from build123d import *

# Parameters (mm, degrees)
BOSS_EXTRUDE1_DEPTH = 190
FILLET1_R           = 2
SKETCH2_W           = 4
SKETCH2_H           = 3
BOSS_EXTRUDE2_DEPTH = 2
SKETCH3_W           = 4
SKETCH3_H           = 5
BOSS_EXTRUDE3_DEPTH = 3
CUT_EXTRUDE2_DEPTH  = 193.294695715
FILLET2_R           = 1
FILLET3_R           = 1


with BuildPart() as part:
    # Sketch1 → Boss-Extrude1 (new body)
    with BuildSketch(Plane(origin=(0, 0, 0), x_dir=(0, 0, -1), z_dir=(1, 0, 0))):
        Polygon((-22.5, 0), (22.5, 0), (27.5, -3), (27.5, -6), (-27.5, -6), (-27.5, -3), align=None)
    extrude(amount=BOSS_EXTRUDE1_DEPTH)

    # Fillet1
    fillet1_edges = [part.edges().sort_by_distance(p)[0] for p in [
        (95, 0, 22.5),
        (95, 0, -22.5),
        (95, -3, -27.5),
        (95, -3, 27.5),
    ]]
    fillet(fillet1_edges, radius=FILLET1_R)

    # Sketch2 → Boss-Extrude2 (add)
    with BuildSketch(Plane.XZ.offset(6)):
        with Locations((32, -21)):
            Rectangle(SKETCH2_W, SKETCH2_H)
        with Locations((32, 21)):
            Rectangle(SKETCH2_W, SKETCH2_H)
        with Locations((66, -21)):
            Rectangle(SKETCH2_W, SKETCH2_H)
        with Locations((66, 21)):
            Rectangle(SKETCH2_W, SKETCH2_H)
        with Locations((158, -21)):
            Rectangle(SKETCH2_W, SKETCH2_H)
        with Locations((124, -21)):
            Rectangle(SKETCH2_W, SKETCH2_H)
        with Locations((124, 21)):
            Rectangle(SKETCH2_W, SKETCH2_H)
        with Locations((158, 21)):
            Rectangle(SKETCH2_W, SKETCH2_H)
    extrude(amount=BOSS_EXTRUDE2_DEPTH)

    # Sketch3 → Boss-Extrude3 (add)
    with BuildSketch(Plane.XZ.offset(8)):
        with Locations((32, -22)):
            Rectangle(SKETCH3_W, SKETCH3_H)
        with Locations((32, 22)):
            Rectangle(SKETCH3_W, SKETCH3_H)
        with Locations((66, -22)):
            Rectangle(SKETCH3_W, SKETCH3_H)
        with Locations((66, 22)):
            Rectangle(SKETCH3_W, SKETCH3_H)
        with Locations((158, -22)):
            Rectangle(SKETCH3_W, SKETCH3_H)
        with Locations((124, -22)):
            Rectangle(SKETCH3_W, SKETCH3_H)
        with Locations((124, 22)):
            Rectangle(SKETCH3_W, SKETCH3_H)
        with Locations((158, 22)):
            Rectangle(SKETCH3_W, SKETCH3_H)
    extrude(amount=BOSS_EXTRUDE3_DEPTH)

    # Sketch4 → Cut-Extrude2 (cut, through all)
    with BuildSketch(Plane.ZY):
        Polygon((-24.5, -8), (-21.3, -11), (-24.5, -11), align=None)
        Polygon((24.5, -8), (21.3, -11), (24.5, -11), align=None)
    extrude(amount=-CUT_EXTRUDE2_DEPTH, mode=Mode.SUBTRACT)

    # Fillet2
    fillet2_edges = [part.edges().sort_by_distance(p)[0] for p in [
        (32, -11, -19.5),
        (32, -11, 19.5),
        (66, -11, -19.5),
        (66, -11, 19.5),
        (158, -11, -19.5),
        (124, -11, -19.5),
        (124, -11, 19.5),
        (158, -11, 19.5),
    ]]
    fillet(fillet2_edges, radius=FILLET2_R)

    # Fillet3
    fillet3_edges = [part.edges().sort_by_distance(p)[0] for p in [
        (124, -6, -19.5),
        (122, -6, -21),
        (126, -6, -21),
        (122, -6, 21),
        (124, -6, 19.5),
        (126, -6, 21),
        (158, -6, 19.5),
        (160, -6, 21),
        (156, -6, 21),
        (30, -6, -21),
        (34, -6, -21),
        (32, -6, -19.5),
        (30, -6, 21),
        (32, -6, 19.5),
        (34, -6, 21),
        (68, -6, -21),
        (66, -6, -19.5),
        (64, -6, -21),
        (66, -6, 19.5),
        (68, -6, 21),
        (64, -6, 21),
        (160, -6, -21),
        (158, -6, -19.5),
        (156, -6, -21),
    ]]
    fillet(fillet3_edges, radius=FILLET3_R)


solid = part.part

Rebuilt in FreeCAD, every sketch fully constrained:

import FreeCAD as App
import Part
import Sketcher
from FreeCAD import Vector
Q = App.Units.Quantity


def edges_at(feature, points):
    """Names of the edges that pass closest to the given points."""
    edges = feature.Shape.Edges
    near = lambda p: min(range(len(edges)), key=lambda i: edges[i].distToShape(Part.Vertex(*p))[0])
    return sorted({f"Edge{near(p) + 1}" for p in points})


def add_polygon(sketch, points):
    """Adds a closed chain of lines whose ends are joined by coincident constraints."""
    first, n = sketch.GeometryCount, len(points)
    for a, b in zip(points, points[1:] + points[:1]):
        sketch.addGeometry(Part.LineSegment(App.Vector(*a, 0), App.Vector(*b, 0)), False)
    for i in range(n):
        sketch.addConstraint(Sketcher.Constraint("Coincident", first + i, 2, first + (i + 1) % n, 1))

doc = App.newDocument("Part")
body = doc.addObject("PartDesign::Body", "Body")

sketch1 = doc.addObject("Sketcher::SketchObject", "Sketch")
body.addObject(sketch1)
sketch1.AttachmentSupport = (doc.YZ_Plane, [""])
sketch1.MapMode = "FlatFace"
add_polygon(sketch1, [(0, -22.5), (0, 22.5), (-3, 27.5), (-6, 27.5), (-6, -27.5), (-3, -27.5)])
sketch1.addConstraint([
    Sketcher.Constraint("Vertical", 0),
    Sketcher.Constraint("Horizontal", 2),
    Sketcher.Constraint("Vertical", 3),
    Sketcher.Constraint("Horizontal", 4),
    Sketcher.Constraint("Symmetric", 0, 2, 5, 2, -1, 1),
    Sketcher.Constraint("Symmetric", 1, 2, 4, 2, -1),
    Sketcher.Constraint("DistanceX", 2, 2, 2, 1, Q("3 mm")),
    Sketcher.Constraint("DistanceY", 0, 1, 0, 2, Q("45 mm")),
    Sketcher.Constraint("DistanceY", 3, 2, 3, 1, Q("55 mm")),
    Sketcher.Constraint("DistanceX", 1, 2, -1, 1, Q("3 mm")),
])
pad1 = doc.addObject("PartDesign::Pad", "Pad")
body.addObject(pad1)
pad1.Profile = sketch1
pad1.Length = 190
doc.recompute()

fillet = doc.addObject("PartDesign::Fillet", "Fillet")
body.addObject(fillet)
fillet.Base = (pad1, edges_at(pad1, [
    (95, 0, 22.5),
    (95, 0, -22.5),
    (95, -3, -27.5),
    (95, -3, 27.5),
]))
fillet.Radius = 2

sketch2 = doc.addObject("Sketcher::SketchObject", "Sketch001")
body.addObject(sketch2)
sketch2.AttachmentSupport = (doc.XZ_Plane, [""])
sketch2.MapMode = "FlatFace"
sketch2.AttachmentOffset = App.Placement(Vector(0, 0, 6), App.Rotation())
add_polygon(sketch2, [(30, -19.5), (30, -22.5), (34, -22.5), (34, -19.5)])
add_polygon(sketch2, [(30, 22.5), (30, 19.5), (34, 19.5), (34, 22.5)])
add_polygon(sketch2, [(64, -19.5), (64, -22.5), (68, -22.5), (68, -19.5)])
add_polygon(sketch2, [(64, 22.5), (64, 19.5), (68, 19.5), (68, 22.5)])
add_polygon(sketch2, [(156, -19.5), (156, -22.5), (160, -22.5), (160, -19.5)])
add_polygon(sketch2, [(122, -19.5), (122, -22.5), (126, -22.5), (126, -19.5)])
add_polygon(sketch2, [(122, 22.5), (122, 19.5), (126, 19.5), (126, 22.5)])
add_polygon(sketch2, [(156, 22.5), (156, 19.5), (160, 19.5), (160, 22.5)])
sketch2.addConstraint([
    Sketcher.Constraint("Vertical", 0),
    Sketcher.Constraint("Horizontal", 1),
    Sketcher.Constraint("Vertical", 2),
    Sketcher.Constraint("Horizontal", 3),
    Sketcher.Constraint("Vertical", 4),
    Sketcher.Constraint("Horizontal", 5),
    Sketcher.Constraint("Vertical", 6),
    Sketcher.Constraint("Horizontal", 7),
    Sketcher.Constraint("Vertical", 8),
    Sketcher.Constraint("Horizontal", 9),
    Sketcher.Constraint("Vertical", 10),
    Sketcher.Constraint("Horizontal", 11),
    Sketcher.Constraint("Vertical", 12),
    Sketcher.Constraint("Horizontal", 13),
    Sketcher.Constraint("Vertical", 14),
    Sketcher.Constraint("Horizontal", 15),
    Sketcher.Constraint("Vertical", 16),
    Sketcher.Constraint("Horizontal", 17),
    Sketcher.Constraint("Vertical", 18),
    Sketcher.Constraint("Horizontal", 19),
    Sketcher.Constraint("Vertical", 20),
    Sketcher.Constraint("Horizontal", 21),
    Sketcher.Constraint("Vertical", 22),
    Sketcher.Constraint("Horizontal", 23),
    Sketcher.Constraint("Vertical", 24),
    Sketcher.Constraint("Horizontal", 25),
    Sketcher.Constraint("Vertical", 26),
    Sketcher.Constraint("Horizontal", 27),
    Sketcher.Constraint("Vertical", 28),
    Sketcher.Constraint("Horizontal", 29),
    Sketcher.Constraint("Vertical", 30),
    Sketcher.Constraint("Horizontal", 31),
    Sketcher.Constraint("Symmetric", 3, 2, 4, 2, -1),
    Sketcher.Constraint("Symmetric", 1, 2, 6, 2, -1),
    Sketcher.Constraint("Symmetric", 11, 2, 12, 2, -1),
    Sketcher.Constraint("Symmetric", 9, 2, 14, 2, -1),
    Sketcher.Constraint("Symmetric", 23, 2, 24, 2, -1),
    Sketcher.Constraint("Symmetric", 21, 2, 26, 2, -1),
    Sketcher.Constraint("Symmetric", 19, 2, 28, 2, -1),
    Sketcher.Constraint("Symmetric", 17, 2, 30, 2, -1),
    Sketcher.Constraint("Horizontal", 1, 2, 8, 2),
    Sketcher.Constraint("Horizontal", 3, 2, 10, 2),
    Sketcher.Constraint("Horizontal", 9, 2, 16, 2),
    Sketcher.Constraint("Horizontal", 11, 2, 18, 2),
    Sketcher.Constraint("Horizontal", 17, 2, 20, 2),
    Sketcher.Constraint("Horizontal", 19, 2, 22, 2),
    Sketcher.Constraint("Equal", 7, 9),
    Sketcher.Constraint("Equal", 15, 17),
    Sketcher.Constraint("Equal", 19, 21),
    Sketcher.Constraint("DistanceX", 1, 1, 1, 2, Q("4 mm")),
    Sketcher.Constraint("DistanceY", 0, 2, 0, 1, Q("3 mm")),
    Sketcher.Constraint("DistanceX", -1, 1, 0, 2, Q("30 mm")),
    Sketcher.Constraint("DistanceX", -1, 1, 8, 2, Q("64 mm")),
    Sketcher.Constraint("DistanceX", -1, 1, 16, 2, Q("156 mm")),
    Sketcher.Constraint("DistanceX", -1, 1, 20, 2, Q("122 mm")),
    Sketcher.Constraint("DistanceY", 3, 2, 4, 2, Q("39 mm")),
])
pad2 = doc.addObject("PartDesign::Pad", "Pad001")
body.addObject(pad2)
pad2.Profile = sketch2
pad2.Length = 2

sketch3 = doc.addObject("Sketcher::SketchObject", "Sketch002")
body.addObject(sketch3)
sketch3.AttachmentSupport = (doc.XZ_Plane, [""])
sketch3.MapMode = "FlatFace"
sketch3.AttachmentOffset = App.Placement(Vector(0, 0, 8), App.Rotation())
add_polygon(sketch3, [(30, -19.5), (30, -24.5), (34, -24.5), (34, -19.5)])
add_polygon(sketch3, [(30, 24.5), (30, 19.5), (34, 19.5), (34, 24.5)])
add_polygon(sketch3, [(64, -19.5), (64, -24.5), (68, -24.5), (68, -19.5)])
add_polygon(sketch3, [(64, 24.5), (64, 19.5), (68, 19.5), (68, 24.5)])
add_polygon(sketch3, [(156, -19.5), (156, -24.5), (160, -24.5), (160, -19.5)])
add_polygon(sketch3, [(122, -19.5), (122, -24.5), (126, -24.5), (126, -19.5)])
add_polygon(sketch3, [(122, 24.5), (122, 19.5), (126, 19.5), (126, 24.5)])
add_polygon(sketch3, [(156, 24.5), (156, 19.5), (160, 19.5), (160, 24.5)])
sketch3.addConstraint([
    Sketcher.Constraint("Vertical", 0),
    Sketcher.Constraint("Horizontal", 1),
    Sketcher.Constraint("Vertical", 2),
    Sketcher.Constraint("Horizontal", 3),
    Sketcher.Constraint("Vertical", 4),
    Sketcher.Constraint("Horizontal", 5),
    Sketcher.Constraint("Vertical", 6),
    Sketcher.Constraint("Horizontal", 7),
    Sketcher.Constraint("Vertical", 8),
    Sketcher.Constraint("Horizontal", 9),
    Sketcher.Constraint("Vertical", 10),
    Sketcher.Constraint("Horizontal", 11),
    Sketcher.Constraint("Vertical", 12),
    Sketcher.Constraint("Horizontal", 13),
    Sketcher.Constraint("Vertical", 14),
    Sketcher.Constraint("Horizontal", 15),
    Sketcher.Constraint("Vertical", 16),
    Sketcher.Constraint("Horizontal", 17),
    Sketcher.Constraint("Vertical", 18),
    Sketcher.Constraint("Horizontal", 19),
    Sketcher.Constraint("Vertical", 20),
    Sketcher.Constraint("Horizontal", 21),
    Sketcher.Constraint("Vertical", 22),
    Sketcher.Constraint("Horizontal", 23),
    Sketcher.Constraint("Vertical", 24),
    Sketcher.Constraint("Horizontal", 25),
    Sketcher.Constraint("Vertical", 26),
    Sketcher.Constraint("Horizontal", 27),
    Sketcher.Constraint("Vertical", 28),
    Sketcher.Constraint("Horizontal", 29),
    Sketcher.Constraint("Vertical", 30),
    Sketcher.Constraint("Horizontal", 31),
    Sketcher.Constraint("Symmetric", 3, 2, 4, 2, -1),
    Sketcher.Constraint("Symmetric", 1, 2, 6, 2, -1),
    Sketcher.Constraint("Symmetric", 11, 2, 12, 2, -1),
    Sketcher.Constraint("Symmetric", 9, 2, 14, 2, -1),
    Sketcher.Constraint("Symmetric", 23, 2, 24, 2, -1),
    Sketcher.Constraint("Symmetric", 21, 2, 26, 2, -1),
    Sketcher.Constraint("Symmetric", 19, 2, 28, 2, -1),
    Sketcher.Constraint("Symmetric", 17, 2, 30, 2, -1),
    Sketcher.Constraint("Horizontal", 1, 2, 8, 2),
    Sketcher.Constraint("Horizontal", 3, 2, 10, 2),
    Sketcher.Constraint("Horizontal", 9, 2, 16, 2),
    Sketcher.Constraint("Horizontal", 11, 2, 18, 2),
    Sketcher.Constraint("Horizontal", 17, 2, 20, 2),
    Sketcher.Constraint("Horizontal", 19, 2, 22, 2),
    Sketcher.Constraint("Equal", 7, 9),
    Sketcher.Constraint("Equal", 15, 17),
    Sketcher.Constraint("Equal", 19, 21),
    Sketcher.Constraint("DistanceX", 1, 1, 1, 2, Q("4 mm")),
    Sketcher.Constraint("DistanceY", 0, 2, 0, 1, Q("5 mm")),
    Sketcher.Constraint("DistanceX", -1, 1, 0, 2, Q("30 mm")),
    Sketcher.Constraint("DistanceX", -1, 1, 8, 2, Q("64 mm")),
    Sketcher.Constraint("DistanceX", -1, 1, 16, 2, Q("156 mm")),
    Sketcher.Constraint("DistanceX", -1, 1, 20, 2, Q("122 mm")),
    Sketcher.Constraint("DistanceY", 3, 2, 4, 2, Q("39 mm")),
])
pad3 = doc.addObject("PartDesign::Pad", "Pad002")
body.addObject(pad3)
pad3.Profile = sketch3
pad3.Length = 3

sketch4 = doc.addObject("Sketcher::SketchObject", "Sketch003")
body.addObject(sketch4)
sketch4.AttachmentSupport = (doc.YZ_Plane, [""])
sketch4.MapMode = "FlatFace"
add_polygon(sketch4, [(-11, -21.3), (-8, -24.5), (-11, -24.5)])
add_polygon(sketch4, [(-8, 24.5), (-11, 21.3), (-11, 24.5)])
sketch4.addConstraint([
    Sketcher.Constraint("Horizontal", 1),
    Sketcher.Constraint("Vertical", 2),
    Sketcher.Constraint("Vertical", 4),
    Sketcher.Constraint("Horizontal", 5),
    Sketcher.Constraint("Symmetric", 2, 2, 3, 2, -1),
    Sketcher.Constraint("Symmetric", 0, 2, 5, 2, -1),
    Sketcher.Constraint("DistanceX", 1, 2, 1, 1, Q("3 mm")),
    Sketcher.Constraint("DistanceY", 2, 1, 2, 2, Q("3.2 mm")),
    Sketcher.Constraint("DistanceX", 0, 2, -1, 1, Q("8 mm")),
    Sketcher.Constraint("DistanceY", 1, 2, 4, 2, Q("49 mm")),
])
pocket1 = doc.addObject("PartDesign::Pocket", "Pocket")
body.addObject(pocket1)
pocket1.Profile = sketch4
pocket1.Type = "ThroughAll"
pocket1.Reversed = True
doc.recompute()

fillet2 = doc.addObject("PartDesign::Fillet", "Fillet001")
body.addObject(fillet2)
fillet2.Base = (pocket1, edges_at(pocket1, [
    (32, -11, -19.5),
    (32, -11, 19.5),
    (66, -11, -19.5),
    (66, -11, 19.5),
    (158, -11, -19.5),
    (124, -11, -19.5),
    (124, -11, 19.5),
    (158, -11, 19.5),
]))
fillet2.Radius = 1
doc.recompute()

fillet3 = doc.addObject("PartDesign::Fillet", "Fillet002")
body.addObject(fillet3)
fillet3.Base = (fillet2, edges_at(fillet2, [
    (124, -6, -19.5),
    (122, -6, -21),
    (126, -6, -21),
    (122, -6, 21),
    (124, -6, 19.5),
    (126, -6, 21),
    (158, -6, 19.5),
    (160, -6, 21),
    (156, -6, 21),
    (30, -6, -21),
    (34, -6, -21),
    (32, -6, -19.5),
    (30, -6, 21),
    (32, -6, 19.5),
    (34, -6, 21),
    (68, -6, -21),
    (66, -6, -19.5),
    (64, -6, -21),
    (66, -6, 19.5),
    (68, -6, 21),
    (64, -6, 21),
    (160, -6, -21),
    (158, -6, -19.5),
    (156, -6, -21),
]))
fillet3.Radius = 1

doc.recompute()
